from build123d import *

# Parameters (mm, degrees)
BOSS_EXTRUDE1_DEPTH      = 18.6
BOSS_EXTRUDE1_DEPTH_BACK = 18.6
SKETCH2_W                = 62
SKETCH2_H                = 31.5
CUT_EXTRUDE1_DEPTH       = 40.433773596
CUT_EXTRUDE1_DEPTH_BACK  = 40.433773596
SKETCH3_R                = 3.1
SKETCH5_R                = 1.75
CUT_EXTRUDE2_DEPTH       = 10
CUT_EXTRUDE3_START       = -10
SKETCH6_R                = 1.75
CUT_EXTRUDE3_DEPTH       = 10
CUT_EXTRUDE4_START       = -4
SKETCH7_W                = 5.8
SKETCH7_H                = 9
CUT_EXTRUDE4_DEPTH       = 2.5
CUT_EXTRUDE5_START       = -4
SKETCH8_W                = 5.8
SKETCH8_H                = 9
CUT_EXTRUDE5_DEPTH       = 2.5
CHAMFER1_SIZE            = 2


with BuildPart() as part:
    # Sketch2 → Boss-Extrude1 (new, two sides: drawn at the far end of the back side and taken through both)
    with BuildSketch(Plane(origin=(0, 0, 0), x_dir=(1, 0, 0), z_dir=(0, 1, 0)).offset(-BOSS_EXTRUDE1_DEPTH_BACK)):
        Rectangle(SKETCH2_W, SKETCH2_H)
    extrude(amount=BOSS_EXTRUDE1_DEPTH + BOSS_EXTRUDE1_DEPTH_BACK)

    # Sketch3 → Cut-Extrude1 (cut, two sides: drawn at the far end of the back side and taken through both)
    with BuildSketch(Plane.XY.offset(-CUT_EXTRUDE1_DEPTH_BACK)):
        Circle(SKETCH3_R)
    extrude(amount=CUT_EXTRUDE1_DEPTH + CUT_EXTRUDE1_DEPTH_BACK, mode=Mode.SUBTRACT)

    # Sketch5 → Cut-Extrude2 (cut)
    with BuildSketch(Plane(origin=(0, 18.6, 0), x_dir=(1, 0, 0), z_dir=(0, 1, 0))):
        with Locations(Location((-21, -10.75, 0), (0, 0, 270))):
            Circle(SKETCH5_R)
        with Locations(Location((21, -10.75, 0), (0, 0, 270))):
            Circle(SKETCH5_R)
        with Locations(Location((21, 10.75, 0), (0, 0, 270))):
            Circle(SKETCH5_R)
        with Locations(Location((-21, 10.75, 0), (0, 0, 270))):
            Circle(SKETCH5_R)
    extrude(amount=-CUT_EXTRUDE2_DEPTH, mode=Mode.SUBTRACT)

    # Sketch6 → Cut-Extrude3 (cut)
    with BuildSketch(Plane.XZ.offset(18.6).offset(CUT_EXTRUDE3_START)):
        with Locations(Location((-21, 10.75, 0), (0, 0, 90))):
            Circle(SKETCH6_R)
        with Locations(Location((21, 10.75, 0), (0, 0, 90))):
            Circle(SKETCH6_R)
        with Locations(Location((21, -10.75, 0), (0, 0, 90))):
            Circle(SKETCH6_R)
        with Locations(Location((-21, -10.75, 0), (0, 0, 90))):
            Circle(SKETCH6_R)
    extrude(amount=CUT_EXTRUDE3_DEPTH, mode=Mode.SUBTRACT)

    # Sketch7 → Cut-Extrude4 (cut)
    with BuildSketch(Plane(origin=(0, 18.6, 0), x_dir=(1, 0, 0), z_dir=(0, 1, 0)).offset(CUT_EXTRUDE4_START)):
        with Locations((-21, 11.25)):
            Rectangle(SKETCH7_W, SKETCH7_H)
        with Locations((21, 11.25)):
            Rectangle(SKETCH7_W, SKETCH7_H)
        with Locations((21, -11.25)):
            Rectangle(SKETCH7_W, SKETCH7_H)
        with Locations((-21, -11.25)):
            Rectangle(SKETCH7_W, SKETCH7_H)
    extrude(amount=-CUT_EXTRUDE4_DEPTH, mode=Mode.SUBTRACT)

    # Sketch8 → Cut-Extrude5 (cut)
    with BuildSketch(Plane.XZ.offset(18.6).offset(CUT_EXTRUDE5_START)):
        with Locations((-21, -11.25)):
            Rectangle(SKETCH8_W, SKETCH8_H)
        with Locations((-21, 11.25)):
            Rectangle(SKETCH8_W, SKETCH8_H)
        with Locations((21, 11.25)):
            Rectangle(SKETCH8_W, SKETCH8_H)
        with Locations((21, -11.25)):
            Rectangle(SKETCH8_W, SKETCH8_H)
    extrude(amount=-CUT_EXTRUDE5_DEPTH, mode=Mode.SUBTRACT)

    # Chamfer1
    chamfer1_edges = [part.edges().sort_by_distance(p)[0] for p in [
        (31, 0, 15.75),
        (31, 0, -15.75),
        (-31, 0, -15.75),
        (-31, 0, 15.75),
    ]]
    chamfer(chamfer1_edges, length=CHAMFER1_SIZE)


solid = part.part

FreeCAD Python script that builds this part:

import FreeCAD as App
import Part
import Sketcher


def edges_at(feature, points):
    """Names of the edges that pass closest to the given points."""
    edges = feature.Shape.Edges
    near = lambda p: min(range(len(edges)), key=lambda i: edges[i].distToShape(Part.Vertex(*p))[0])
    return sorted({f"Edge{near(p) + 1}" for p in points})

doc = App.newDocument("Part")
body = doc.addObject("PartDesign::Body", "Body")

# Sketch on XZ plane
sketch1 = body.newObject("Sketcher::SketchObject", "Sketch")
sketch1.AttachmentSupport = (doc.getObject("XZ_Plane"), [""])
sketch1.MapMode = "FlatFace"
sketch1.addGeometry([
    Part.LineSegment(App.Vector(-31, -15.75, 0), App.Vector(-31, 15.75, 0)),
    Part.LineSegment(App.Vector(-31, 15.75, 0), App.Vector(31, 15.75, 0)),
    Part.LineSegment(App.Vector(31, 15.75, 0), App.Vector(31, -15.75, 0)),
    Part.LineSegment(App.Vector(31, -15.75, 0), App.Vector(-31, -15.75, 0)),
], False)
sketch1.addConstraint([
    Sketcher.Constraint("Coincident", 0, 2, 1, 1),
    Sketcher.Constraint("Coincident", 1, 2, 2, 1),
    Sketcher.Constraint("Coincident", 2, 2, 3, 1),
    Sketcher.Constraint("Coincident", 3, 2, 0, 1),
    Sketcher.Constraint("Vertical", 0),
    Sketcher.Constraint("Horizontal", 1),
    Sketcher.Constraint("Vertical", 2),
    Sketcher.Constraint("Horizontal", 3),
    Sketcher.Constraint("Symmetric", 0, 2, 2, 2, -1, 1),
    Sketcher.Constraint("DistanceX", 1, 1, 1, 2, 62.0),
    Sketcher.Constraint("DistanceY", 0, 1, 0, 2, 31.5),
])
pad1 = body.newObject("PartDesign::Pad", "Pad")
pad1.Profile = sketch1
pad1.Type = "TwoLengths"
pad1.Length = 18.6
pad1.Length2 = 18.6
pad1.Reversed = True

# Sketch on XY plane
sketch2 = body.newObject("Sketcher::SketchObject", "Sketch001")
sketch2.AttachmentSupport = (doc.getObject("XY_Plane"), [""])
sketch2.MapMode = "FlatFace"
sketch2.addGeometry(Part.Circle(App.Vector(0, 0, 0), App.Vector(0, 0, 1), 3.1), False)
sketch2.addConstraint([
    Sketcher.Constraint("Coincident", 0, 3, -1, 1),
    Sketcher.Constraint("Diameter", 0, 6.2),
])
pocket1 = body.newObject("PartDesign::Pocket", "Pocket")
pocket1.Profile = sketch2
pocket1.Type = "ThroughAll"
pocket1.Midplane = True

# Sketch on XZ plane
sketch3 = body.newObject("Sketcher::SketchObject", "Sketch002")
sketch3.AttachmentSupport = (doc.getObject("XZ_Plane"), [""])
sketch3.MapMode = "FlatFace"
sketch3.AttachmentOffset = App.Placement(App.Vector(0, 0, -18.6), App.Rotation())
sketch3.addGeometry([
    Part.Circle(App.Vector(-21, 10.75, 0), App.Vector(0, 0, 1), 1.75),
    Part.Circle(App.Vector(21, 10.75, 0), App.Vector(0, 0, 1), 1.75),
    Part.Circle(App.Vector(21, -10.75, 0), App.Vector(0, 0, 1), 1.75),
    Part.Circle(App.Vector(-21, -10.75, 0), App.Vector(0, 0, 1), 1.75),
], False)
sketch3.addConstraint([
    Sketcher.Constraint("Equal", 0, 1),
    Sketcher.Constraint("Equal", 1, 2),
    Sketcher.Constraint("Equal", 2, 3),
    Sketcher.Constraint("Symmetric", 0, 3, 2, 3, -1, 1),
    Sketcher.Constraint("Symmetric", 1, 3, 3, 3, -1, 1),
    Sketcher.Constraint("Symmetric", 0, 3, 1, 3, -2),
    Sketcher.Constraint("Diameter", 0, 3.5),
    Sketcher.Constraint("DistanceX", 0, 3, -1, 1, 21.0),
    Sketcher.Constraint("DistanceY", 2, 3, 1, 3, 21.5),
])
pocket2 = body.newObject("PartDesign::Pocket", "Pocket001")
pocket2.Profile = sketch3
pocket2.Length = 10
pocket2.Reversed = True

# Sketch on XZ plane
sketch4 = body.newObject("Sketcher::SketchObject", "Sketch003")
sketch4.AttachmentSupport = (doc.getObject("XZ_Plane"), [""])
sketch4.MapMode = "FlatFace"
sketch4.AttachmentOffset = App.Placement(App.Vector(0, 0, 8.6), App.Rotation())
sketch4.addGeometry([
    Part.Circle(App.Vector(-21, 10.75, 0), App.Vector(0, 0, 1), 1.75),
    Part.Circle(App.Vector(21, 10.75, 0), App.Vector(0, 0, 1), 1.75),
    Part.Circle(App.Vector(21, -10.75, 0), App.Vector(0, 0, 1), 1.75),
    Part.Circle(App.Vector(-21, -10.75, 0), App.Vector(0, 0, 1), 1.75),
], False)
sketch4.addConstraint([
    Sketcher.Constraint("Equal", 0, 1),
    Sketcher.Constraint("Equal", 1, 2),
    Sketcher.Constraint("Equal", 2, 3),
    Sketcher.Constraint("Symmetric", 0, 3, 2, 3, -1, 1),
    Sketcher.Constraint("Symmetric", 1, 3, 3, 3, -1, 1),
    Sketcher.Constraint("Symmetric", 0, 3, 1, 3, -2),
    Sketcher.Constraint("Diameter", 0, 3.5),
    Sketcher.Constraint("DistanceX", 0, 3, -1, 1, 21.0),
    Sketcher.Constraint("DistanceY", 2, 3, 1, 3, 21.5),
])
pocket3 = body.newObject("PartDesign::Pocket", "Pocket002")
pocket3.Profile = sketch4
pocket3.Length = 10
pocket3.Reversed = True

# Sketch on XZ plane
sketch5 = body.newObject("Sketcher::SketchObject", "Sketch004")
sketch5.AttachmentSupport = (doc.getObject("XZ_Plane"), [""])
sketch5.MapMode = "FlatFace"
sketch5.AttachmentOffset = App.Placement(App.Vector(0, 0, -14.6), App.Rotation())
sketch5.addGeometry([
    Part.LineSegment(App.Vector(-23.9, -15.75, 0), App.Vector(-23.9, -6.75, 0)),  # 0
    Part.LineSegment(App.Vector(-23.9, -6.75, 0), App.Vector(-18.1, -6.75, 0)),  # 1
    Part.LineSegment(App.Vector(-18.1, -6.75, 0), App.Vector(-18.1, -15.75, 0)),  # 2
    Part.LineSegment(App.Vector(-18.1, -15.75, 0), App.Vector(-23.9, -15.75, 0)),  # 3
    Part.LineSegment(App.Vector(18.1, -15.75, 0), App.Vector(18.1, -6.75, 0)),  # 4
    Part.LineSegment(App.Vector(18.1, -6.75, 0), App.Vector(23.9, -6.75, 0)),  # 5
    Part.LineSegment(App.Vector(23.9, -6.75, 0), App.Vector(23.9, -15.75, 0)),  # 6
    Part.LineSegment(App.Vector(23.9, -15.75, 0), App.Vector(18.1, -15.75, 0)),  # 7
    Part.LineSegment(App.Vector(18.1, 6.75, 0), App.Vector(18.1, 15.75, 0)),  # 8
    Part.LineSegment(App.Vector(18.1, 15.75, 0), App.Vector(23.9, 15.75, 0)),  # 9
    Part.LineSegment(App.Vector(23.9, 15.75, 0), App.Vector(23.9, 6.75, 0)),  # 10
    Part.LineSegment(App.Vector(23.9, 6.75, 0), App.Vector(18.1, 6.75, 0)),  # 11
    Part.LineSegment(App.Vector(-23.9, 6.75, 0), App.Vector(-23.9, 15.75, 0)),  # 12
    Part.LineSegment(App.Vector(-23.9, 15.75, 0), App.Vector(-18.1, 15.75, 0)),  # 13
    Part.LineSegment(App.Vector(-18.1, 15.75, 0), App.Vector(-18.1, 6.75, 0)),  # 14
    Part.LineSegment(App.Vector(-18.1, 6.75, 0), App.Vector(-23.9, 6.75, 0)),  # 15
], False)
sketch5.addConstraint([
    Sketcher.Constraint("Coincident", 0, 2, 1, 1),
    Sketcher.Constraint("Coincident", 1, 2, 2, 1),
    Sketcher.Constraint("Coincident", 2, 2, 3, 1),
    Sketcher.Constraint("Coincident", 3, 2, 0, 1),
    Sketcher.Constraint("Coincident", 4, 2, 5, 1),
    Sketcher.Constraint("Coincident", 5, 2, 6, 1),
    Sketcher.Constraint("Coincident", 6, 2, 7, 1),
    Sketcher.Constraint("Coincident", 7, 2, 4, 1),
    Sketcher.Constraint("Coincident", 8, 2, 9, 1),
    Sketcher.Constraint("Coincident", 9, 2, 10, 1),
    Sketcher.Constraint("Coincident", 10, 2, 11, 1),
    Sketcher.Constraint("Coincident", 11, 2, 8, 1),
    Sketcher.Constraint("Coincident", 12, 2, 13, 1),
    Sketcher.Constraint("Coincident", 13, 2, 14, 1),
    Sketcher.Constraint("Coincident", 14, 2, 15, 1),
    Sketcher.Constraint("Coincident", 15, 2, 12, 1),
    Sketcher.Constraint("Vertical", 0),
    Sketcher.Constraint("Horizontal", 1),
    Sketcher.Constraint("Vertical", 2),
    Sketcher.Constraint("Horizontal", 3),
    Sketcher.Constraint("Vertical", 4),
    Sketcher.Constraint("Horizontal", 5),
    Sketcher.Constraint("Vertical", 6),
    Sketcher.Constraint("Horizontal", 7),
    Sketcher.Constraint("Vertical", 8),
    Sketcher.Constraint("Horizontal", 9),
    Sketcher.Constraint("Vertical", 10),
    Sketcher.Constraint("Horizontal", 11),
    Sketcher.Constraint("Vertical", 12),
    Sketcher.Constraint("Horizontal", 13),
    Sketcher.Constraint("Vertical", 14),
    Sketcher.Constraint("Horizontal", 15),
    Sketcher.Constraint("Symmetric", 2, 2, 8, 2, -1, 1),
    Sketcher.Constraint("Symmetric", 0, 2, 10, 2, -1, 1),
    Sketcher.Constraint("Symmetric", 6, 2, 12, 2, -1, 1),
    Sketcher.Constraint("Symmetric", 4, 2, 14, 2, -1, 1),
    Sketcher.Constraint("Symmetric", 1, 2, 4, 2, -2),
    Sketcher.Constraint("Symmetric", 3, 2, 6, 2, -2),
    Sketcher.Constraint("DistanceY", 0, 1, 0, 2, 9.0),
    Sketcher.Constraint("DistanceX", 1, 1, 1, 2, 5.8),
    Sketcher.Constraint("DistanceX", 0, 2, 4, 2, 42.0),
    Sketcher.Constraint("DistanceY", 4, 2, 8, 2, 22.5),
])
pocket4 = body.newObject("PartDesign::Pocket", "Pocket003")
pocket4.Profile = sketch5
pocket4.Length = 2.5
pocket4.Reversed = True

# Sketch on XZ plane
sketch6 = body.newObject("Sketcher::SketchObject", "Sketch005")
sketch6.AttachmentSupport = (doc.getObject("XZ_Plane"), [""])
sketch6.MapMode = "FlatFace"
sketch6.AttachmentOffset = App.Placement(App.Vector(0, 0, 14.6), App.Rotation())
sketch6.addGeometry([
    Part.LineSegment(App.Vector(-23.9, -6.75, 0), App.Vector(-23.9, -15.75, 0)),  # 0
    Part.LineSegment(App.Vector(-23.9, -15.75, 0), App.Vector(-18.1, -15.75, 0)),  # 1
    Part.LineSegment(App.Vector(-18.1, -15.75, 0), App.Vector(-18.1, -6.75, 0)),  # 2
    Part.LineSegment(App.Vector(-18.1, -6.75, 0), App.Vector(-23.9, -6.75, 0)),  # 3
    Part.LineSegment(App.Vector(-23.9, 15.75, 0), App.Vector(-23.9, 6.75, 0)),  # 4
    Part.LineSegment(App.Vector(-23.9, 6.75, 0), App.Vector(-18.1, 6.75, 0)),  # 5
    Part.LineSegment(App.Vector(-18.1, 6.75, 0), App.Vector(-18.1, 15.75, 0)),  # 6
    Part.LineSegment(App.Vector(-18.1, 15.75, 0), App.Vector(-23.9, 15.75, 0)),  # 7
    Part.LineSegment(App.Vector(18.1, 15.75, 0), App.Vector(18.1, 6.75, 0)),  # 8
    Part.LineSegment(App.Vector(18.1, 6.75, 0), App.Vector(23.9, 6.75, 0)),  # 9
    Part.LineSegment(App.Vector(23.9, 6.75, 0), App.Vector(23.9, 15.75, 0)),  # 10
    Part.LineSegment(App.Vector(23.9, 15.75, 0), App.Vector(18.1, 15.75, 0)),  # 11
    Part.LineSegment(App.Vector(18.1, -6.75, 0), App.Vector(18.1, -15.75, 0)),  # 12
    Part.LineSegment(App.Vector(18.1, -15.75, 0), App.Vector(23.9, -15.75, 0)),  # 13
    Part.LineSegment(App.Vector(23.9, -15.75, 0), App.Vector(23.9, -6.75, 0)),  # 14
    Part.LineSegment(App.Vector(23.9, -6.75, 0), App.Vector(18.1, -6.75, 0)),  # 15
], False)
sketch6.addConstraint([
    Sketcher.Constraint("Coincident", 0, 2, 1, 1),
    Sketcher.Constraint("Coincident", 1, 2, 2, 1),
    Sketcher.Constraint("Coincident", 2, 2, 3, 1),
    Sketcher.Constraint("Coincident", 3, 2, 0, 1),
    Sketcher.Constraint("Coincident", 4, 2, 5, 1),
    Sketcher.Constraint("Coincident", 5, 2, 6, 1),
    Sketcher.Constraint("Coincident", 6, 2, 7, 1),
    Sketcher.Constraint("Coincident", 7, 2, 4, 1),
    Sketcher.Constraint("Coincident", 8, 2, 9, 1),
    Sketcher.Constraint("Coincident", 9, 2, 10, 1),
    Sketcher.Constraint("Coincident", 10, 2, 11, 1),
    Sketcher.Constraint("Coincident", 11, 2, 8, 1),
    Sketcher.Constraint("Coincident", 12, 2, 13, 1),
    Sketcher.Constraint("Coincident", 13, 2, 14, 1),
    Sketcher.Constraint("Coincident", 14, 2, 15, 1),
    Sketcher.Constraint("Coincident", 15, 2, 12, 1),
    Sketcher.Constraint("Vertical", 0),
    Sketcher.Constraint("Horizontal", 1),
    Sketcher.Constraint("Vertical", 2),
    Sketcher.Constraint("Horizontal", 3),
    Sketcher.Constraint("Vertical", 4),
    Sketcher.Constraint("Horizontal", 5),
    Sketcher.Constraint("Vertical", 6),
    Sketcher.Constraint("Horizontal", 7),
    Sketcher.Constraint("Vertical", 8),
    Sketcher.Constraint("Horizontal", 9),
    Sketcher.Constraint("Vertical", 10),
    Sketcher.Constraint("Horizontal", 11),
    Sketcher.Constraint("Vertical", 12),
    Sketcher.Constraint("Horizontal", 13),
    Sketcher.Constraint("Vertical", 14),
    Sketcher.Constraint("Horizontal", 15),
    Sketcher.Constraint("Symmetric", 2, 2, 8, 2, -1, 1),
    Sketcher.Constraint("Symmetric", 0, 2, 10, 2, -1, 1),
    Sketcher.Constraint("Symmetric", 6, 2, 12, 2, -1, 1),
    Sketcher.Constraint("Symmetric", 4, 2, 14, 2, -1, 1),
    Sketcher.Constraint("Symmetric", 5, 2, 8, 2, -2),
    Sketcher.Constraint("Symmetric", 7, 2, 10, 2, -2),
    Sketcher.Constraint("DistanceY", 0, 2, 0, 1, 9.0),
    Sketcher.Constraint("DistanceX", 1, 1, 1, 2, 5.8),
    Sketcher.Constraint("DistanceX", 4, 2, 8, 2, 42.0),
    Sketcher.Constraint("DistanceY", 3, 2, 4, 2, 13.5),
])
pocket5 = body.newObject("PartDesign::Pocket", "Pocket004")
pocket5.Profile = sketch6
pocket5.Length = 2.5
doc.recompute()

chamfer = body.newObject("PartDesign::Chamfer", "Chamfer")
chamfer.Base = (pocket5, edges_at(pocket5, [
    (31, 0, 15.75),
    (31, 0, -15.75),
    (-31, 0, -15.75),
    (-31, 0, 15.75),
]))
chamfer.Size = 2

doc.recompute()
